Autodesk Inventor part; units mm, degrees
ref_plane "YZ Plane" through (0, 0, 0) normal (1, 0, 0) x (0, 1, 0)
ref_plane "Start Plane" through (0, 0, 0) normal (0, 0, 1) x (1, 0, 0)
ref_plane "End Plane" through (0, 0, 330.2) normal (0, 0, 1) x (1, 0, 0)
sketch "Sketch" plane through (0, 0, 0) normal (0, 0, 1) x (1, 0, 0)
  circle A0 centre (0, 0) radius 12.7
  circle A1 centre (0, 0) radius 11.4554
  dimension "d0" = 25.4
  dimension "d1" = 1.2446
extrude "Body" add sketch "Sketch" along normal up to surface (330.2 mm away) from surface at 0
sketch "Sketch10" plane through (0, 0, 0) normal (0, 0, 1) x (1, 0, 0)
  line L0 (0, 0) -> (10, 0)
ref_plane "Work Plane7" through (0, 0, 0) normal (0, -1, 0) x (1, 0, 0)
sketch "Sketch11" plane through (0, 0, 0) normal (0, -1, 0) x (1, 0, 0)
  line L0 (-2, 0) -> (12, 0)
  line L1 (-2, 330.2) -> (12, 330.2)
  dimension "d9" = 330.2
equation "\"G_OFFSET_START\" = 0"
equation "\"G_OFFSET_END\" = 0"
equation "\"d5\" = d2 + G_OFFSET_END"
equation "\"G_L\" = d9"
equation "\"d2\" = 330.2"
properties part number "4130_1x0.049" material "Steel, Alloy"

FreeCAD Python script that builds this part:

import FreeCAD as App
import Part
import Sketcher
Q = App.Units.Quantity

doc = App.newDocument("Part")
body = doc.addObject("PartDesign::Body", "Body")

sketch1 = body.newObject("Sketcher::SketchObject", "Sketch")
sketch1.AttachmentSupport = (doc.getObject("XY_Plane"), [""])
sketch1.MapMode = "FlatFace"
sketch1.addGeometry(Part.Circle(App.Vector(0, 0, 0), App.Vector(0, 0, 1), 13), False)
sketch1.addGeometry(Part.Circle(App.Vector(0, 0, 0), App.Vector(0, 0, 1), 11), False)
sketch1.addConstraint(Sketcher.Constraint("Coincident", 0, 3, -1, 1))
sketch1.addConstraint(Sketcher.Constraint("Coincident", 1, 3, -1, 1))
sketch1.addConstraint(Sketcher.Constraint("Diameter", 0, Q("1 in")))
sketch1.addConstraint(Sketcher.Constraint("Diameter", 1, Q("0.902 in")))
pad1 = body.newObject("PartDesign::Pad", "Pad")
pad1.Profile = sketch1
pad1.Length = Q("13 in")

doc.recompute()
